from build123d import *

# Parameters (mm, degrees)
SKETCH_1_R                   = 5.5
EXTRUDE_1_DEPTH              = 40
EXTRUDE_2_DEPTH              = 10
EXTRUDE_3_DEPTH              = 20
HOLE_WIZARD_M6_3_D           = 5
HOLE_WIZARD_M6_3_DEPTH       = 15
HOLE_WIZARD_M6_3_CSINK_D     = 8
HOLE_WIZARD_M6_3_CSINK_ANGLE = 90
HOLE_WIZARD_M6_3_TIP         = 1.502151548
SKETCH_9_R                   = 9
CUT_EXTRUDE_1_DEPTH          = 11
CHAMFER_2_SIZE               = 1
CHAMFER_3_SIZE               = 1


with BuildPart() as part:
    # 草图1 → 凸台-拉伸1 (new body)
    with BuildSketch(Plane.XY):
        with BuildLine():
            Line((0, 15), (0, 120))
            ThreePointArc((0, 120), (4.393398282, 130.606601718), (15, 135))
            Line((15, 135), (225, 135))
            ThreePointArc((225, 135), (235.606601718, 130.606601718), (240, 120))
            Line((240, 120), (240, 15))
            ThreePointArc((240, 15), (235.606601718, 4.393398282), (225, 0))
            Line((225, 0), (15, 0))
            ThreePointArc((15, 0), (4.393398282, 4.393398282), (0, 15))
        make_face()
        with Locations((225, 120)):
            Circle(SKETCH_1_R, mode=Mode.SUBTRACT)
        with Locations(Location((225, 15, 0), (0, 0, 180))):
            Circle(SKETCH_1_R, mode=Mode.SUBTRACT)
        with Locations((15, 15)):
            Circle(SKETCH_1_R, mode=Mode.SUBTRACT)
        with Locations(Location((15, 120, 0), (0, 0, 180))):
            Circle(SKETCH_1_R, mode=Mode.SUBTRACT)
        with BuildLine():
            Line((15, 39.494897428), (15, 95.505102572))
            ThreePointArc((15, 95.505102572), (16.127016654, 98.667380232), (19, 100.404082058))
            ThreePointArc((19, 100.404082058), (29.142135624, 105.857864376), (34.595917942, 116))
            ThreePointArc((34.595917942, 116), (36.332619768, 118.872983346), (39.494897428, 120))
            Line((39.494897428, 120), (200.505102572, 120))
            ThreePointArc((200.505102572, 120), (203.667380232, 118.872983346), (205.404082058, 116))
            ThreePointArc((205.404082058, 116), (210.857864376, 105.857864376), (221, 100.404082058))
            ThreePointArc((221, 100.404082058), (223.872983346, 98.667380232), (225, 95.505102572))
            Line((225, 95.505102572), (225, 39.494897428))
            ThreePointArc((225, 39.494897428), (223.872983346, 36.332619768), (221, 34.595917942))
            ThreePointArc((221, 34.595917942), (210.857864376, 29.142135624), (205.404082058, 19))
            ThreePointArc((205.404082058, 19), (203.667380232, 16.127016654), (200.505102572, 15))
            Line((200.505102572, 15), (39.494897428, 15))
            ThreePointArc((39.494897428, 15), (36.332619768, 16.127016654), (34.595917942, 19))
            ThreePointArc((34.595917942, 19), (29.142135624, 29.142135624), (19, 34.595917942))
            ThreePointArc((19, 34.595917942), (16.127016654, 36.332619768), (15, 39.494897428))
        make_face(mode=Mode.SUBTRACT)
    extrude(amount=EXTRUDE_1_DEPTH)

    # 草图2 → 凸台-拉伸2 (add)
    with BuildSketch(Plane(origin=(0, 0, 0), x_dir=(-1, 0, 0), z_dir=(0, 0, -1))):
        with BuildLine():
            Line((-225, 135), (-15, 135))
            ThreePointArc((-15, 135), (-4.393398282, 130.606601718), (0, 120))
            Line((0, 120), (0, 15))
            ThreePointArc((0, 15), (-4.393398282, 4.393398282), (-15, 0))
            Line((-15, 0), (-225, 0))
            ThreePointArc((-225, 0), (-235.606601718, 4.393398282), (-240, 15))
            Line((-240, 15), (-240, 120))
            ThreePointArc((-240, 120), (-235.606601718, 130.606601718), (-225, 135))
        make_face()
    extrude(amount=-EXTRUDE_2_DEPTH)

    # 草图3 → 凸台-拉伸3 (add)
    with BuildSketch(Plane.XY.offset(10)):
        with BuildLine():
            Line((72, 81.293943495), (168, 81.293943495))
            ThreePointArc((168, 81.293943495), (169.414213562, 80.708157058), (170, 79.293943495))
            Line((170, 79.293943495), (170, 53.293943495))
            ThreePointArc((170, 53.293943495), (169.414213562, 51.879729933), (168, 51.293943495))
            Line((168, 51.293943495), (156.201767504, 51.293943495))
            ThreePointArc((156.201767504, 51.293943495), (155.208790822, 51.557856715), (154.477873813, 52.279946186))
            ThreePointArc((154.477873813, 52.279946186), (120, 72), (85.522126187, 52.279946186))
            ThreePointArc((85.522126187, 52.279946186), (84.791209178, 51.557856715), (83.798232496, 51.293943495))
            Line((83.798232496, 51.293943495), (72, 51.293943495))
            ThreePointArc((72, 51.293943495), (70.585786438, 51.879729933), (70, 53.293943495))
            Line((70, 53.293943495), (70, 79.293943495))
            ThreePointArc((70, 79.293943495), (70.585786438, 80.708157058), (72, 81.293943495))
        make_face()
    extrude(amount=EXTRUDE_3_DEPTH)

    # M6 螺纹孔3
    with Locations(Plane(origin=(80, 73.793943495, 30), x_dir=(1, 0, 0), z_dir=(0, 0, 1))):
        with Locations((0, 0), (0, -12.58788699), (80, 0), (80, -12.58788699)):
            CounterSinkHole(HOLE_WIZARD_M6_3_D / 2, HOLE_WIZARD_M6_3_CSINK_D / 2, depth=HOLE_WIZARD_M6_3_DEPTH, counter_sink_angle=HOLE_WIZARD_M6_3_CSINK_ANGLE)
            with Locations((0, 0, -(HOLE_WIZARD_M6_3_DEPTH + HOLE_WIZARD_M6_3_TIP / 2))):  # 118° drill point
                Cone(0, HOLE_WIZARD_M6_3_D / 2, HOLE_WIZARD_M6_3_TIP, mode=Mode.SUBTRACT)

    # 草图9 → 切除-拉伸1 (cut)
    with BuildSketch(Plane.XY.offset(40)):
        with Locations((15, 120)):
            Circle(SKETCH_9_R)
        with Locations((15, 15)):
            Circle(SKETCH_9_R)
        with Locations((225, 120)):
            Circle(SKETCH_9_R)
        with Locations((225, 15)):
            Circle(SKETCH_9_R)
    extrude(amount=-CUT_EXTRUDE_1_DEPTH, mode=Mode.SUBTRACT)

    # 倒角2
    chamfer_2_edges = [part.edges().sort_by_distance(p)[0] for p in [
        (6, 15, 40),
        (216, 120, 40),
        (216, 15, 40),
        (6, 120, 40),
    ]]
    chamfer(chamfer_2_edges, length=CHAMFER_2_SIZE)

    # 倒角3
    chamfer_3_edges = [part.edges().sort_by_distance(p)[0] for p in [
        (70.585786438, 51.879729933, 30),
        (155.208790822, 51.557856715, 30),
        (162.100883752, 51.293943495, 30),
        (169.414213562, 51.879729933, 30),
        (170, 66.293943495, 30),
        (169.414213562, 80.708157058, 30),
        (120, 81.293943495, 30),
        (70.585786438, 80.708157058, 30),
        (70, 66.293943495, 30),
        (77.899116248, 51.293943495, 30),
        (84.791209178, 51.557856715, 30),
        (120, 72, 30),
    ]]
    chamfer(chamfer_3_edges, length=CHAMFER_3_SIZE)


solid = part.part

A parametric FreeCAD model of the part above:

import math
import FreeCAD as App
import Part
import Sketcher
Q = App.Units.Quantity


def edges_at(feature, points):
    """Names of the edges that pass closest to the given points."""
    edges = feature.Shape.Edges
    near = lambda p: min(range(len(edges)), key=lambda i: edges[i].distToShape(Part.Vertex(*p))[0])
    return sorted({f"Edge{near(p) + 1}" for p in points})

doc = App.newDocument("Part")
body = doc.addObject("PartDesign::Body", "Body")

sketch1 = doc.addObject("Sketcher::SketchObject", "Sketch")
body.addObject(sketch1)
sketch1.AttachmentSupport = (doc.XY_Plane, [""])
sketch1.MapMode = "FlatFace"
sketch1.addGeometry([
    Part.LineSegment(App.Vector(0, 120, 0), App.Vector(0, 15, 0)),
    Part.ArcOfCircle(Part.Circle(App.Vector(15, 15, 0), App.Vector(0, 0, 1), 15), math.radians(180), math.radians(270)),
    Part.LineSegment(App.Vector(15, 0, 0), App.Vector(225, 0, 0)),
    Part.ArcOfCircle(Part.Circle(App.Vector(225, 15, 0), App.Vector(0, 0, 1), 15), math.radians(-90), math.radians(0)),
    Part.LineSegment(App.Vector(240, 15, 0), App.Vector(240, 120, 0)),
    Part.ArcOfCircle(Part.Circle(App.Vector(225, 120, 0), App.Vector(0, 0, 1), 15), math.radians(0), math.radians(90)),
    Part.LineSegment(App.Vector(225, 135, 0), App.Vector(15, 135, 0)),
    Part.ArcOfCircle(Part.Circle(App.Vector(15, 120, 0), App.Vector(0, 0, 1), 15), math.radians(90), math.radians(180)),
    Part.Circle(App.Vector(225, 15, 0), App.Vector(0, 0, 1), 5.5),
    Part.Circle(App.Vector(15, 15, 0), App.Vector(0, 0, 1), 5.5),
    Part.Circle(App.Vector(225, 120, 0), App.Vector(0, 0, 1), 5.5),
    Part.LineSegment(App.Vector(15, 39.494897, 0), App.Vector(15, 95.505103, 0)),
    Part.ArcOfCircle(Part.Circle(App.Vector(20, 95.505103, 0), App.Vector(0, 0, 1), 5), math.radians(101.536959), math.radians(180)),
    Part.ArcOfCircle(Part.Circle(App.Vector(15, 120, 0), App.Vector(0, 0, 1), 20), math.radians(-78.463041), math.radians(-11.536959)),
    Part.ArcOfCircle(Part.Circle(App.Vector(39.494897, 115, 0), App.Vector(0, 0, 1), 5), math.radians(90), math.radians(168.463041)),
    Part.LineSegment(App.Vector(39.494897, 120, 0), App.Vector(200.505103, 120, 0)),
    Part.ArcOfCircle(Part.Circle(App.Vector(200.505103, 115, 0), App.Vector(0, 0, 1), 5), math.radians(11.536959), math.radians(90)),
    Part.ArcOfCircle(Part.Circle(App.Vector(225, 120, 0), App.Vector(0, 0, 1), 20), math.radians(-168.463041), math.radians(-101.536959)),
    Part.ArcOfCircle(Part.Circle(App.Vector(220, 95.505103, 0), App.Vector(0, 0, 1), 5), math.radians(0), math.radians(78.463041)),
    Part.LineSegment(App.Vector(225, 95.505103, 0), App.Vector(225, 39.494897, 0)),
    Part.ArcOfCircle(Part.Circle(App.Vector(220, 39.494897, 0), App.Vector(0, 0, 1), 5), math.radians(-78.463041), math.radians(0)),
    Part.ArcOfCircle(Part.Circle(App.Vector(225, 15, 0), App.Vector(0, 0, 1), 20), math.radians(101.536959), math.radians(168.463041)),
    Part.ArcOfCircle(Part.Circle(App.Vector(200.505103, 20, 0), App.Vector(0, 0, 1), 5), math.radians(-90), math.radians(-11.536959)),
    Part.LineSegment(App.Vector(200.505103, 15, 0), App.Vector(39.494897, 15, 0)),
    Part.ArcOfCircle(Part.Circle(App.Vector(39.494897, 20, 0), App.Vector(0, 0, 1), 5), math.radians(-168.463041), math.radians(-90)),
    Part.ArcOfCircle(Part.Circle(App.Vector(15, 15, 0), App.Vector(0, 0, 1), 20), math.radians(11.536959), math.radians(78.463041)),
    Part.ArcOfCircle(Part.Circle(App.Vector(20, 39.494897, 0), App.Vector(0, 0, 1), 5), math.radians(-180), math.radians(-101.536959)),
    Part.Circle(App.Vector(15, 120, 0), App.Vector(0, 0, 1), 5.5),
], False)
sketch1.addConstraint([
    Sketcher.Constraint("Tangent", 0, 2, 1, 1),
    Sketcher.Constraint("Tangent", 1, 2, 2, 1),
    Sketcher.Constraint("Tangent", 2, 2, 3, 1),
    Sketcher.Constraint("Tangent", 3, 2, 4, 1),
    Sketcher.Constraint("Tangent", 4, 2, 5, 1),
    Sketcher.Constraint("Tangent", 5, 2, 6, 1),
    Sketcher.Constraint("Tangent", 6, 2, 7, 1),
    Sketcher.Constraint("Tangent", 7, 2, 0, 1),
    Sketcher.Constraint("Tangent", 11, 2, 12, 2),
    Sketcher.Constraint("Tangent", 12, 1, 13, 1),
    Sketcher.Constraint("Tangent", 13, 2, 14, 2),
    Sketcher.Constraint("Tangent", 14, 1, 15, 1),
    Sketcher.Constraint("Tangent", 15, 2, 16, 2),
    Sketcher.Constraint("Tangent", 16, 1, 17, 1),
    Sketcher.Constraint("Tangent", 17, 2, 18, 2),
    Sketcher.Constraint("Tangent", 18, 1, 19, 1),
    Sketcher.Constraint("Tangent", 19, 2, 20, 2),
    Sketcher.Constraint("Tangent", 20, 1, 21, 1),
    Sketcher.Constraint("Tangent", 21, 2, 22, 2),
    Sketcher.Constraint("Tangent", 22, 1, 23, 1),
    Sketcher.Constraint("Tangent", 23, 2, 24, 2),
    Sketcher.Constraint("Tangent", 24, 1, 25, 1),
    Sketcher.Constraint("Tangent", 25, 2, 26, 2),
    Sketcher.Constraint("Tangent", 26, 1, 11, 1),
    Sketcher.Constraint("Vertical", 0),
    Sketcher.Constraint("Horizontal", 2),
    Sketcher.Constraint("Vertical", 4),
    Sketcher.Constraint("Horizontal", 6),
    Sketcher.Constraint("Vertical", 11),
    Sketcher.Constraint("Horizontal", 15),
    Sketcher.Constraint("Vertical", 19),
    Sketcher.Constraint("Horizontal", 23),
    Sketcher.Constraint("Coincident", 8, 3, 3, 3),
    Sketcher.Constraint("Coincident", 9, 3, 1, 3),
    Sketcher.Constraint("Coincident", 10, 3, 5, 3),
    Sketcher.Constraint("Coincident", 13, 3, 7, 3),
    Sketcher.Constraint("Coincident", 17, 3, 5, 3),
    Sketcher.Constraint("Coincident", 21, 3, 3, 3),
    Sketcher.Constraint("Coincident", 25, 3, 1, 3),
    Sketcher.Constraint("Coincident", 27, 3, 7, 3),
    Sketcher.Constraint("Equal", 1, 3),
    Sketcher.Constraint("Equal", 3, 5),
    Sketcher.Constraint("Equal", 5, 7),
    Sketcher.Constraint("Equal", 8, 9),
    Sketcher.Constraint("Equal", 9, 10),
    Sketcher.Constraint("Equal", 12, 14),
    Sketcher.Constraint("Equal", 14, 16),
    Sketcher.Constraint("Equal", 13, 17),
    Sketcher.Constraint("Equal", 16, 18),
    Sketcher.Constraint("Equal", 18, 20),
    Sketcher.Constraint("Equal", 17, 21),
    Sketcher.Constraint("Equal", 20, 22),
    Sketcher.Constraint("Equal", 22, 24),
    Sketcher.Constraint("Equal", 21, 25),
    Sketcher.Constraint("Equal", 24, 26),
    Sketcher.Constraint("Equal", 10, 27),
    Sketcher.Constraint("PointOnObject", 0, 2, -2),
    Sketcher.Constraint("PointOnObject", 1, 2, -1),
    Sketcher.Constraint("Horizontal", 12, 3, 18, 3),
    Sketcher.Constraint("Horizontal", 7, 2, 14, 1),
    Sketcher.Constraint("Horizontal", 3, 2, 22, 1),
    Sketcher.Constraint("Vertical", 6, 2, 11, 2),
    Sketcher.Constraint("Diameter", 8, Q("11 mm")),
    Sketcher.Constraint("Radius", 1, Q("15 mm")),
    Sketcher.Constraint("Radius", 12, Q("5 mm")),
    Sketcher.Constraint("Radius", 13, Q("20 mm")),
    Sketcher.Constraint("DistanceX", 2, 1, 2, 2, Q("210 mm")),
    Sketcher.Constraint("DistanceY", 0, 2, 0, 1, Q("105 mm")),
])
pad1 = doc.addObject("PartDesign::Pad", "Pad")
body.addObject(pad1)
pad1.Profile = sketch1
pad1.Length = 40

sketch2 = doc.addObject("Sketcher::SketchObject", "Sketch001")
body.addObject(sketch2)
sketch2.AttachmentSupport = (doc.XY_Plane, [""])
sketch2.MapMode = "FlatFace"
sketch2.addGeometry([
    Part.LineSegment(App.Vector(15, 135, 0), App.Vector(225, 135, 0)),
    Part.ArcOfCircle(Part.Circle(App.Vector(225, 120, 0), App.Vector(0, 0, 1), 15), math.radians(0), math.radians(90)),
    Part.LineSegment(App.Vector(240, 120, 0), App.Vector(240, 15, 0)),
    Part.ArcOfCircle(Part.Circle(App.Vector(225, 15, 0), App.Vector(0, 0, 1), 15), math.radians(-90), math.radians(0)),
    Part.LineSegment(App.Vector(225, 0, 0), App.Vector(15, 0, 0)),
    Part.ArcOfCircle(Part.Circle(App.Vector(15, 15, 0), App.Vector(0, 0, 1), 15), math.radians(180), math.radians(270)),
    Part.LineSegment(App.Vector(0, 15, 0), App.Vector(0, 120, 0)),
    Part.ArcOfCircle(Part.Circle(App.Vector(15, 120, 0), App.Vector(0, 0, 1), 15), math.radians(90), math.radians(180)),
], False)
sketch2.addConstraint([
    Sketcher.Constraint("Tangent", 0, 2, 1, 2),
    Sketcher.Constraint("Tangent", 1, 1, 2, 1),
    Sketcher.Constraint("Tangent", 2, 2, 3, 2),
    Sketcher.Constraint("Tangent", 3, 1, 4, 1),
    Sketcher.Constraint("Tangent", 4, 2, 5, 2),
    Sketcher.Constraint("Tangent", 5, 1, 6, 1),
    Sketcher.Constraint("Tangent", 6, 2, 7, 2),
    Sketcher.Constraint("Tangent", 7, 1, 0, 1),
    Sketcher.Constraint("Horizontal", 0),
    Sketcher.Constraint("Vertical", 2),
    Sketcher.Constraint("Horizontal", 4),
    Sketcher.Constraint("Vertical", 6),
    Sketcher.Constraint("Equal", 1, 3),
    Sketcher.Constraint("Equal", 3, 5),
    Sketcher.Constraint("Equal", 5, 7),
    Sketcher.Constraint("PointOnObject", 3, 1, -1),
    Sketcher.Constraint("PointOnObject", 5, 1, -2),
    Sketcher.Constraint("Radius", 1, Q("15 mm")),
    Sketcher.Constraint("DistanceX", 0, 1, 0, 2, Q("210 mm")),
    Sketcher.Constraint("DistanceY", 2, 2, 2, 1, Q("105 mm")),
])
pad2 = doc.addObject("PartDesign::Pad", "Pad001")
body.addObject(pad2)
pad2.Profile = sketch2
pad2.Length = 10

sketch3 = doc.addObject("Sketcher::SketchObject", "Sketch002")
body.addObject(sketch3)
sketch3.AttachmentSupport = (doc.XY_Plane, [""])
sketch3.MapMode = "FlatFace"
sketch3.AttachmentOffset = App.Placement(App.Vector(0, 0, 10), App.Rotation())
sketch3.addGeometry([
    Part.LineSegment(App.Vector(168, 81.293943, 0), App.Vector(72, 81.293943, 0)),
    Part.ArcOfCircle(Part.Circle(App.Vector(72, 79.293943, 0), App.Vector(0, 0, 1), 2), math.radians(90), math.radians(180)),
    Part.LineSegment(App.Vector(70, 79.293943, 0), App.Vector(70, 53.293943, 0)),
    Part.ArcOfCircle(Part.Circle(App.Vector(72, 53.293943, 0), App.Vector(0, 0, 1), 2), math.radians(-180), math.radians(-90)),
    Part.LineSegment(App.Vector(72, 51.293943, 0), App.Vector(83.798232, 51.293943, 0)),
    Part.ArcOfCircle(Part.Circle(App.Vector(83.798232, 53.293943, 0), App.Vector(0, 0, 1), 2), math.radians(-90), math.radians(-30.464118)),
    Part.ArcOfCircle(Part.Circle(App.Vector(120, 32, 0), App.Vector(0, 0, 1), 40), math.radians(30.464118), math.radians(149.535882)),
    Part.ArcOfCircle(Part.Circle(App.Vector(156.201768, 53.293943, 0), App.Vector(0, 0, 1), 2), math.radians(-149.535882), math.radians(-90)),
    Part.LineSegment(App.Vector(156.201768, 51.293943, 0), App.Vector(168, 51.293943, 0)),
    Part.ArcOfCircle(Part.Circle(App.Vector(168, 53.293943, 0), App.Vector(0, 0, 1), 2), math.radians(-90), math.radians(0)),
    Part.LineSegment(App.Vector(170, 53.293943, 0), App.Vector(170, 79.293943, 0)),
    Part.ArcOfCircle(Part.Circle(App.Vector(168, 79.293943, 0), App.Vector(0, 0, 1), 2), math.radians(0), math.radians(90)),
], False)
sketch3.addConstraint([
    Sketcher.Constraint("Tangent", 0, 2, 1, 1),
    Sketcher.Constraint("Tangent", 1, 2, 2, 1),
    Sketcher.Constraint("Tangent", 2, 2, 3, 1),
    Sketcher.Constraint("Tangent", 3, 2, 4, 1),
    Sketcher.Constraint("Tangent", 4, 2, 5, 1),
    Sketcher.Constraint("Tangent", 5, 2, 6, 2),
    Sketcher.Constraint("Tangent", 6, 1, 7, 1),
    Sketcher.Constraint("Tangent", 7, 2, 8, 1),
    Sketcher.Constraint("Tangent", 8, 2, 9, 1),
    Sketcher.Constraint("Tangent", 9, 2, 10, 1),
    Sketcher.Constraint("Tangent", 10, 2, 11, 1),
    Sketcher.Constraint("Tangent", 11, 2, 0, 1),
    Sketcher.Constraint("Horizontal", 0),
    Sketcher.Constraint("Vertical", 2),
    Sketcher.Constraint("Horizontal", 4),
    Sketcher.Constraint("Horizontal", 8),
    Sketcher.Constraint("Vertical", 10),
    Sketcher.Constraint("Equal", 1, 3),
    Sketcher.Constraint("Equal", 3, 5),
    Sketcher.Constraint("Equal", 5, 7),
    Sketcher.Constraint("Equal", 7, 9),
    Sketcher.Constraint("Equal", 9, 11),
    Sketcher.Constraint("Horizontal", 5, 3, 7, 3),
    Sketcher.Constraint("Equal", 4, 8),
    Sketcher.Constraint("Radius", 1, Q("2 mm")),
    Sketcher.Constraint("Radius", 6, Q("40 mm")),
    Sketcher.Constraint("DistanceX", 0, 2, 0, 1, Q("96 mm")),
    Sketcher.Constraint("DistanceY", 2, 2, 2, 1, Q("26 mm")),
    Sketcher.Constraint("DistanceX", -1, 1, 1, 3, Q("72 mm")),
    Sketcher.Constraint("DistanceY", -1, 1, 6, 3, Q("32 mm")),
    Sketcher.Constraint("DistanceX", 4, 1, 4, 2, Q("11.798232 mm")),
])
pad3 = doc.addObject("PartDesign::Pad", "Pad002")
body.addObject(pad3)
pad3.Profile = sketch3
pad3.Length = 20

sketch4 = doc.addObject("Sketcher::SketchObject", "Sketch003")
body.addObject(sketch4)
sketch4.AttachmentSupport = (doc.XY_Plane, [""])
sketch4.MapMode = "FlatFace"
sketch4.AttachmentOffset = App.Placement(App.Vector(0, 0, 30), App.Rotation())
sketch4.addGeometry([
    Part.Circle(App.Vector(80, 73.793943, 0), App.Vector(0, 0, 1), 2.5),
    Part.Circle(App.Vector(80, 61.206057, 0), App.Vector(0, 0, 1), 2.5),
    Part.Circle(App.Vector(160, 73.793943, 0), App.Vector(0, 0, 1), 2.5),
    Part.Circle(App.Vector(160, 61.206057, 0), App.Vector(0, 0, 1), 2.5),
], False)
sketch4.addConstraint([
    Sketcher.Constraint("Equal", 0, 1),
    Sketcher.Constraint("Equal", 1, 2),
    Sketcher.Constraint("Equal", 2, 3),
    Sketcher.Constraint("Horizontal", 0, 3, 2, 3),
    Sketcher.Constraint("Horizontal", 1, 3, 3, 3),
    Sketcher.Constraint("Vertical", 0, 3, 1, 3),
    Sketcher.Constraint("Vertical", 2, 3, 3, 3),
    Sketcher.Constraint("Diameter", 0, Q("5 mm")),
    Sketcher.Constraint("DistanceX", -1, 1, 0, 3, Q("80 mm")),
    Sketcher.Constraint("DistanceX", -1, 1, 2, 3, Q("160 mm")),
    Sketcher.Constraint("DistanceY", -1, 1, 0, 3, Q("73.793943 mm")),
    Sketcher.Constraint("DistanceY", -1, 1, 1, 3, Q("61.206057 mm")),
])
doc.recompute()
hole = doc.addObject("PartDesign::Hole", "Hole")
body.addObject(hole)
hole.Profile = sketch4
hole.ThreadType = "None"
hole.Diameter = 5
hole.DepthType = "Dimension"
hole.Depth = 15
hole.DrillPoint = "Angled"
hole.DrillPointAngle = 118
hole.HoleCutType = "Countersink"
hole.HoleCutDiameter = 8
hole.HoleCutCountersinkAngle = 90

sketch5 = doc.addObject("Sketcher::SketchObject", "Sketch004")
body.addObject(sketch5)
sketch5.AttachmentSupport = (doc.XY_Plane, [""])
sketch5.MapMode = "FlatFace"
sketch5.AttachmentOffset = App.Placement(App.Vector(0, 0, 40), App.Rotation())
sketch5.addGeometry([
    Part.Circle(App.Vector(15, 120, 0), App.Vector(0, 0, 1), 9),
    Part.Circle(App.Vector(15, 15, 0), App.Vector(0, 0, 1), 9),
    Part.Circle(App.Vector(225, 120, 0), App.Vector(0, 0, 1), 9),
    Part.Circle(App.Vector(225, 15, 0), App.Vector(0, 0, 1), 9),
], False)
sketch5.addConstraint([
    Sketcher.Constraint("Equal", 0, 1),
    Sketcher.Constraint("Equal", 1, 2),
    Sketcher.Constraint("Equal", 2, 3),
    Sketcher.Constraint("Horizontal", 0, 3, 2, 3),
    Sketcher.Constraint("Horizontal", 1, 3, 3, 3),
    Sketcher.Constraint("Vertical", 0, 3, 1, 3),
    Sketcher.Constraint("Vertical", 2, 3, 3, 3),
    Sketcher.Constraint("Diameter", 0, Q("18 mm")),
    Sketcher.Constraint("DistanceX", -1, 1, 0, 3, Q("15 mm")),
    Sketcher.Constraint("DistanceY", -1, 1, 0, 3, Q("120 mm")),
    Sketcher.Constraint("DistanceY", -1, 1, 1, 3, Q("15 mm")),
    Sketcher.Constraint("DistanceX", -1, 1, 2, 3, Q("225 mm")),
])
pocket1 = doc.addObject("PartDesign::Pocket", "Pocket")
body.addObject(pocket1)
pocket1.Profile = sketch5
pocket1.Length = 11
doc.recompute()

chamfer = doc.addObject("PartDesign::Chamfer", "Chamfer")
body.addObject(chamfer)
chamfer.Base = (pocket1, edges_at(pocket1, [
    (6, 15, 40),
    (216, 120, 40),
    (216, 15, 40),
    (6, 120, 40),
]))
chamfer.Size = 1
doc.recompute()

chamfer2 = doc.addObject("PartDesign::Chamfer", "Chamfer001")
body.addObject(chamfer2)
chamfer2.Base = (chamfer, edges_at(chamfer, [
    (70.586, 51.88, 30),
    (155.209, 51.558, 30),
    (162.101, 51.294, 30),
    (169.414, 51.88, 30),
    (170, 66.294, 30),
    (169.414, 80.708, 30),
    (120, 81.294, 30),
    (70.586, 80.708, 30),
    (70, 66.294, 30),
    (77.899, 51.294, 30),
    (84.791, 51.558, 30),
    (120, 72, 30),
]))
chamfer2.Size = 1

doc.recompute()
